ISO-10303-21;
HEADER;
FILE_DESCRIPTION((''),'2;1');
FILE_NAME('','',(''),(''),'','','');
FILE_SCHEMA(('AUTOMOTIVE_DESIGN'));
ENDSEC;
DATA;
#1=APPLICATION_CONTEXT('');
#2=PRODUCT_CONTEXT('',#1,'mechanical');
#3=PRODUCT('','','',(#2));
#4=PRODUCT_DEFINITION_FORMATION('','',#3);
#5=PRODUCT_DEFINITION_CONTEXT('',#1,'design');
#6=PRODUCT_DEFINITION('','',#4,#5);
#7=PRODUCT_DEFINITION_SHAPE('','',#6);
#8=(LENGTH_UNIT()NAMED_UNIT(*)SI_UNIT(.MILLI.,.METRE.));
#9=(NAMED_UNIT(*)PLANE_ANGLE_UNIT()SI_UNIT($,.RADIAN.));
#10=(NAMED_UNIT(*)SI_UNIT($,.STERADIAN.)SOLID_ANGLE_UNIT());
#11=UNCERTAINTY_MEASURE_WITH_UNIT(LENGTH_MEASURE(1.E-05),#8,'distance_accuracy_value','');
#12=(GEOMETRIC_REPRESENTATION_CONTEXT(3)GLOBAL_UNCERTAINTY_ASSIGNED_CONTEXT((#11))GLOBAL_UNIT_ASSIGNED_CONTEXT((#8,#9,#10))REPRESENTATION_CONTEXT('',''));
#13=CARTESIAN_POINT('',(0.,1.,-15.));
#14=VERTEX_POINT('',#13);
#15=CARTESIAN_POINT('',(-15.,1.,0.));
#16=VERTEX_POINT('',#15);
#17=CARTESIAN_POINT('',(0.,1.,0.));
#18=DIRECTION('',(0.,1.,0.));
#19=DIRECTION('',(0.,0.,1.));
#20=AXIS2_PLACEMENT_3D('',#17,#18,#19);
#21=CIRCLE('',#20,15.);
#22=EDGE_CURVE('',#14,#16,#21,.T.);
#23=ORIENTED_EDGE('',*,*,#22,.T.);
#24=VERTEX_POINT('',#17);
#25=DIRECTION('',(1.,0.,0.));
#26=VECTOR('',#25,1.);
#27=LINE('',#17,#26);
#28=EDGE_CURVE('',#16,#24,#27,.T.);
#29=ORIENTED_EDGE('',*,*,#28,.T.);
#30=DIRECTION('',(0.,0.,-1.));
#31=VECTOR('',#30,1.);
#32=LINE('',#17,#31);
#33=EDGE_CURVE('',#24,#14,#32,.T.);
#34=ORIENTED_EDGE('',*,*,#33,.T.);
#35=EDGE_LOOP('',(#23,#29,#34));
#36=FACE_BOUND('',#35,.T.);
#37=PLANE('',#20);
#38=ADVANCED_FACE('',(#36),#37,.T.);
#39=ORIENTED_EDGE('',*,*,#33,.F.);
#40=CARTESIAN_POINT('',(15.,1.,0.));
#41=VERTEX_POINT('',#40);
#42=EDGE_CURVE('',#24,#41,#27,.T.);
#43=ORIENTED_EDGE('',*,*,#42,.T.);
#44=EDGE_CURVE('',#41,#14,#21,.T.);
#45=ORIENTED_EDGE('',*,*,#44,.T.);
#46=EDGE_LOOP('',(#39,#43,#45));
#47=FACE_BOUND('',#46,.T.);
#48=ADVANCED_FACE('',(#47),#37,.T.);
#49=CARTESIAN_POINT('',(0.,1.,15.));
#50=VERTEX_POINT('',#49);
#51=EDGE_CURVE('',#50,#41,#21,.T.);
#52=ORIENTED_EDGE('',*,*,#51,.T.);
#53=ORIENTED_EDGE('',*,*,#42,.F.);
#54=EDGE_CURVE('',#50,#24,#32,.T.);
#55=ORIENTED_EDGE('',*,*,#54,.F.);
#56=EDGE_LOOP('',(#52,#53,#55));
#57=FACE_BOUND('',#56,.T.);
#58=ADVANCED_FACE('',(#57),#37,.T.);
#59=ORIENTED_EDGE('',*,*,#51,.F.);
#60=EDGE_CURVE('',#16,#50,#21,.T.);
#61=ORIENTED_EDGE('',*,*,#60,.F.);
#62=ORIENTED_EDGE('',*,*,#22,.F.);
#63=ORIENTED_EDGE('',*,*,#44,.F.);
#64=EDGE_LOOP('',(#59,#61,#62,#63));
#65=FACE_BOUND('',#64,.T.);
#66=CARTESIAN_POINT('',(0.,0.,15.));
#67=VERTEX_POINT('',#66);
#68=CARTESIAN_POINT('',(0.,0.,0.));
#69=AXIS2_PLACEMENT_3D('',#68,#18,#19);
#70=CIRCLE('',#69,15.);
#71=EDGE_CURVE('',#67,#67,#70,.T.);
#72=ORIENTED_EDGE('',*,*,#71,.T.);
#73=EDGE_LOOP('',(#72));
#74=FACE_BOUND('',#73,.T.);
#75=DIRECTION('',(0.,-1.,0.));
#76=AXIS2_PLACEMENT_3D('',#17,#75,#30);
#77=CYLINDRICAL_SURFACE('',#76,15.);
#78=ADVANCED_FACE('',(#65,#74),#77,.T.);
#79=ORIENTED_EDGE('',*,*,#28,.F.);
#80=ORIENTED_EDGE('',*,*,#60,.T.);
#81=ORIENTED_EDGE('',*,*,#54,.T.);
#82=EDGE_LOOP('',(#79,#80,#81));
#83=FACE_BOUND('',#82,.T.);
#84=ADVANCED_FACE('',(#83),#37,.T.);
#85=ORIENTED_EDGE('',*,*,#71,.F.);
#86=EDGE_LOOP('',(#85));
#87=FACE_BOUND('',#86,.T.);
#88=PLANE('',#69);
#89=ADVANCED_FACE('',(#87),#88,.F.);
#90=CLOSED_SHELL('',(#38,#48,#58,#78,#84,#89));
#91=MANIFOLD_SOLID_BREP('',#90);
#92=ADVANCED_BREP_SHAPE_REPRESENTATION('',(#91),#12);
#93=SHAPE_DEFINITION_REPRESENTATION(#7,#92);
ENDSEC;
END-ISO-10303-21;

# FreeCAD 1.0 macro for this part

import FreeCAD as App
import Part
import Sketcher
from FreeCAD import Vector

doc = App.newDocument("Part")
params = doc.addObject("Spreadsheet::Sheet", "Params")
for row, (alias, value) in enumerate([
    ("sketch1_diameter", "30 mm"),
    ("pad1_length", "1 mm"),
], start=1):
    params.set(f"A{row}", alias)
    params.set(f"B{row}", "=" + value)
    params.setAlias(f"B{row}", alias)

body = doc.addObject("PartDesign::Body", "Body")

sketch1 = body.newObject("Sketcher::SketchObject", "Sketch")
sketch1.AttachmentSupport = (doc.getObject("XZ_Plane"), [""])
sketch1.MapMode = "FlatFace"
sketch1.addGeometry(Part.Circle(Vector(0, 0, 0), Vector(0, 0, 1), 15), False)
sketch1.addConstraint(Sketcher.Constraint("Coincident", 0, 3, -1, 1))
sketch1.addConstraint(Sketcher.Constraint("Diameter", 0, 30.0))
sketch1.setExpression("Constraints[1]", "Params.sketch1_diameter")
pad1 = body.newObject("PartDesign::Pad", "Pad")
pad1.Profile = sketch1
pad1.setExpression("Length", "Params.pad1_length")
pad1.Reversed = True

doc.recompute()
